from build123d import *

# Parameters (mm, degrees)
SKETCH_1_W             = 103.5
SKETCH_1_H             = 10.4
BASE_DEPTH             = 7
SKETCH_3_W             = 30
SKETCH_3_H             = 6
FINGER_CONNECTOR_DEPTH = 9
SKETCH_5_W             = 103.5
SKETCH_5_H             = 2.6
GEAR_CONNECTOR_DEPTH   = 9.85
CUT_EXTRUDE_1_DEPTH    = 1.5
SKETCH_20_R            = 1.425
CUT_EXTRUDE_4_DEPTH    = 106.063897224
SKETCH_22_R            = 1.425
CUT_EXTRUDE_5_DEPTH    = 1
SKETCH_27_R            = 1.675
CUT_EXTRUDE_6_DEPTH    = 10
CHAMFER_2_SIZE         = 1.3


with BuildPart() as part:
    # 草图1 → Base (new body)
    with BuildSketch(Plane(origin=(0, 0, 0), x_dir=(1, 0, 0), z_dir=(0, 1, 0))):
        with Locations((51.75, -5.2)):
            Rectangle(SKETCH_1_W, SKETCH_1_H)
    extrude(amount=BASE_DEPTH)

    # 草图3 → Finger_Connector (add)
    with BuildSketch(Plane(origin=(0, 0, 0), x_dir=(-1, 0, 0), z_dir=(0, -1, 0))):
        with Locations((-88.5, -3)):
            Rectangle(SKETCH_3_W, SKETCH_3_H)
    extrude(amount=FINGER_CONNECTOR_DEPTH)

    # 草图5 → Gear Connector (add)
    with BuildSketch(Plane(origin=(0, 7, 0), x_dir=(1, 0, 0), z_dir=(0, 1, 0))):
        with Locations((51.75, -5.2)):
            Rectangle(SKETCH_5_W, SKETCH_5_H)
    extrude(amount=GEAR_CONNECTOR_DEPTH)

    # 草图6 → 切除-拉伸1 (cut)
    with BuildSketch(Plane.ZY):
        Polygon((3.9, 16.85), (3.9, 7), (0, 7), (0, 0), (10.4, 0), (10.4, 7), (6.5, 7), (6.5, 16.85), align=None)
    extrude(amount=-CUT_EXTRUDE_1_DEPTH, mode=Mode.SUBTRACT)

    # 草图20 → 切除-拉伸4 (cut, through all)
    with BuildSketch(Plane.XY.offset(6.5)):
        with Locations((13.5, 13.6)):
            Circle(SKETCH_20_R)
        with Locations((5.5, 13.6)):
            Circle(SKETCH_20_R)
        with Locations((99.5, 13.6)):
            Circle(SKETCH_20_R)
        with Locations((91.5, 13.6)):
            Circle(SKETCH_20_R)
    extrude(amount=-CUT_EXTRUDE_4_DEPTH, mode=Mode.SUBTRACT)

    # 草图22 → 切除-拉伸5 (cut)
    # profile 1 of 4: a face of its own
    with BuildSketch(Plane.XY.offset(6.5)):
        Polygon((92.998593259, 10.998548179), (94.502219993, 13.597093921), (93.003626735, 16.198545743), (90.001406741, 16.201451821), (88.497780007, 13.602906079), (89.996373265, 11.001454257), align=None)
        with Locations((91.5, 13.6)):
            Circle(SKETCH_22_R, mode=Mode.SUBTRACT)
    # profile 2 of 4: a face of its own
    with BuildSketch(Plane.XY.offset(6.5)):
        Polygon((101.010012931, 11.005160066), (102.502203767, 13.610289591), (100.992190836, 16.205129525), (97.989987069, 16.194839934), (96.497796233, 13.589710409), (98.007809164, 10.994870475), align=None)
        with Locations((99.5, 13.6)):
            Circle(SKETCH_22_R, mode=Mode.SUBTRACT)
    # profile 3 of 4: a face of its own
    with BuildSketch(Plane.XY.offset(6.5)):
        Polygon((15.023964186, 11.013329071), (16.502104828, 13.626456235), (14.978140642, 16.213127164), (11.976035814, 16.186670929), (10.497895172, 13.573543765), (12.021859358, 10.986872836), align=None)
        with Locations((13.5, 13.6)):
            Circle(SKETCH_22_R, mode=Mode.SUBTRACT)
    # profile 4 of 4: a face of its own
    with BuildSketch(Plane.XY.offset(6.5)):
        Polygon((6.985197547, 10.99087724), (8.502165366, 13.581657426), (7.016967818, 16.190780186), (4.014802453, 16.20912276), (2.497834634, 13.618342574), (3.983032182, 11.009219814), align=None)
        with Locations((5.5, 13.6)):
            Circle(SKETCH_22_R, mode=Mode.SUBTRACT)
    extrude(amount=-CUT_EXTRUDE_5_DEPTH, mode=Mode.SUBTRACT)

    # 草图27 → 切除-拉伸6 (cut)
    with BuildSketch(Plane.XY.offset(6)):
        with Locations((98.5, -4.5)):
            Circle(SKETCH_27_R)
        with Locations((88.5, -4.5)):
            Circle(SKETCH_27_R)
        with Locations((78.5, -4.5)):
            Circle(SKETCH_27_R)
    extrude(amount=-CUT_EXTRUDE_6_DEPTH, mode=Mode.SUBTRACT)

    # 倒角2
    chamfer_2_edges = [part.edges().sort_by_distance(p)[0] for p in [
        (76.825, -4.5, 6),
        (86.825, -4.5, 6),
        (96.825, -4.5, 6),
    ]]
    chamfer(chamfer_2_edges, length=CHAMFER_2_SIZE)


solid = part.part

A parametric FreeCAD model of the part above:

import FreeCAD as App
import Part
import Sketcher
from FreeCAD import Vector
Q = App.Units.Quantity


def edges_at(feature, points):
    """Names of the edges that pass closest to the given points."""
    edges = feature.Shape.Edges
    near = lambda p: min(range(len(edges)), key=lambda i: edges[i].distToShape(Part.Vertex(*p))[0])
    return sorted({f"Edge{near(p) + 1}" for p in points})

doc = App.newDocument("Part")
body = doc.addObject("PartDesign::Body", "Body")

sketch1 = body.newObject("Sketcher::SketchObject", "Sketch")
sketch1.AttachmentSupport = (doc.getObject("XZ_Plane"), [""])
sketch1.MapMode = "FlatFace"
sketch1.addGeometry(Part.LineSegment(Vector(0, 0, 0), Vector(0, 10, 0)), False)
sketch1.addGeometry(Part.LineSegment(Vector(0, 10, 0), Vector(104, 10, 0)), False)
sketch1.addGeometry(Part.LineSegment(Vector(104, 10, 0), Vector(104, 0, 0)), False)
sketch1.addGeometry(Part.LineSegment(Vector(104, 0, 0), Vector(0, 0, 0)), False)
sketch1.addConstraint(Sketcher.Constraint("Coincident", 0, 2, 1, 1))
sketch1.addConstraint(Sketcher.Constraint("Coincident", 1, 2, 2, 1))
sketch1.addConstraint(Sketcher.Constraint("Coincident", 2, 2, 3, 1))
sketch1.addConstraint(Sketcher.Constraint("Coincident", 3, 2, 0, 1))
sketch1.addConstraint(Sketcher.Constraint("Vertical", 0))
sketch1.addConstraint(Sketcher.Constraint("Horizontal", 1))
sketch1.addConstraint(Sketcher.Constraint("Vertical", 2))
sketch1.addConstraint(Sketcher.Constraint("Horizontal", 3))
sketch1.addConstraint(Sketcher.Constraint("Coincident", 3, 2, -1, 1))
sketch1.addConstraint(Sketcher.Constraint("DistanceX", 1, 1, 1, 2, Q("103.5 mm")))
sketch1.addConstraint(Sketcher.Constraint("DistanceY", 0, 1, 0, 2, Q("10.4 mm")))
pad1 = body.newObject("PartDesign::Pad", "Pad")
pad1.Profile = sketch1
pad1.Length = 7
pad1.Reversed = True

sketch2 = body.newObject("Sketcher::SketchObject", "Sketch001")
sketch2.AttachmentSupport = (doc.getObject("XZ_Plane"), [""])
sketch2.MapMode = "FlatFace"
sketch2.addGeometry(Part.LineSegment(Vector(104, 0, 0), Vector(104, 6, 0)), False)
sketch2.addGeometry(Part.LineSegment(Vector(104, 6, 0), Vector(74, 6, 0)), False)
sketch2.addGeometry(Part.LineSegment(Vector(74, 6, 0), Vector(74, 0, 0)), False)
sketch2.addGeometry(Part.LineSegment(Vector(74, 0, 0), Vector(104, 0, 0)), False)
sketch2.addConstraint(Sketcher.Constraint("Coincident", 0, 2, 1, 1))
sketch2.addConstraint(Sketcher.Constraint("Coincident", 1, 2, 2, 1))
sketch2.addConstraint(Sketcher.Constraint("Coincident", 2, 2, 3, 1))
sketch2.addConstraint(Sketcher.Constraint("Coincident", 3, 2, 0, 1))
sketch2.addConstraint(Sketcher.Constraint("Vertical", 0))
sketch2.addConstraint(Sketcher.Constraint("Horizontal", 1))
sketch2.addConstraint(Sketcher.Constraint("Vertical", 2))
sketch2.addConstraint(Sketcher.Constraint("Horizontal", 3))
sketch2.addConstraint(Sketcher.Constraint("PointOnObject", 2, 2, -1))
sketch2.addConstraint(Sketcher.Constraint("DistanceX", 1, 2, 1, 1, Q("30 mm")))
sketch2.addConstraint(Sketcher.Constraint("DistanceY", 0, 1, 0, 2, Q("6 mm")))
sketch2.addConstraint(Sketcher.Constraint("DistanceX", -1, 1, 0, 2, Q("103.5 mm")))
pad2 = body.newObject("PartDesign::Pad", "Pad001")
pad2.Profile = sketch2
pad2.Length = 9

sketch3 = body.newObject("Sketcher::SketchObject", "Sketch002")
sketch3.AttachmentSupport = (doc.getObject("XZ_Plane"), [""])
sketch3.MapMode = "FlatFace"
sketch3.AttachmentOffset = App.Placement(Vector(0, 0, -7), App.Rotation())
sketch3.addGeometry(Part.LineSegment(Vector(0, 3.9, 0), Vector(0, 6.5, 0)), False)
sketch3.addGeometry(Part.LineSegment(Vector(0, 6.5, 0), Vector(103.5, 6.5, 0)), False)
sketch3.addGeometry(Part.LineSegment(Vector(103.5, 6.5, 0), Vector(103.5, 3.9, 0)), False)
sketch3.addGeometry(Part.LineSegment(Vector(103.5, 3.9, 0), Vector(0, 3.9, 0)), False)
sketch3.addConstraint(Sketcher.Constraint("Coincident", 0, 2, 1, 1))
sketch3.addConstraint(Sketcher.Constraint("Coincident", 1, 2, 2, 1))
sketch3.addConstraint(Sketcher.Constraint("Coincident", 2, 2, 3, 1))
sketch3.addConstraint(Sketcher.Constraint("Coincident", 3, 2, 0, 1))
sketch3.addConstraint(Sketcher.Constraint("Vertical", 0))
sketch3.addConstraint(Sketcher.Constraint("Horizontal", 1))
sketch3.addConstraint(Sketcher.Constraint("Vertical", 2))
sketch3.addConstraint(Sketcher.Constraint("Horizontal", 3))
sketch3.addConstraint(Sketcher.Constraint("PointOnObject", 0, 2, -2))
sketch3.addConstraint(Sketcher.Constraint("DistanceX", 1, 1, 1, 2, Q("103.5 mm")))
sketch3.addConstraint(Sketcher.Constraint("DistanceY", 0, 1, 0, 2, Q("2.6 mm")))
sketch3.addConstraint(Sketcher.Constraint("DistanceY", -1, 1, 0, 2, Q("6.5 mm")))
pad3 = body.newObject("PartDesign::Pad", "Pad002")
pad3.Profile = sketch3
pad3.Length = 9.85
pad3.Reversed = True

sketch4 = body.newObject("Sketcher::SketchObject", "Sketch003")
sketch4.AttachmentSupport = (doc.getObject("YZ_Plane"), [""])
sketch4.MapMode = "FlatFace"
sketch4.addGeometry(Part.LineSegment(Vector(16.9, 3.9, 0), Vector(7, 3.9, 0)), False)
sketch4.addGeometry(Part.LineSegment(Vector(7, 3.9, 0), Vector(7, 0, 0)), False)
sketch4.addGeometry(Part.LineSegment(Vector(7, 0, 0), Vector(0, 0, 0)), False)
sketch4.addGeometry(Part.LineSegment(Vector(0, 0, 0), Vector(0, 10.4, 0)), False)
sketch4.addGeometry(Part.LineSegment(Vector(0, 10.4, 0), Vector(7, 10.4, 0)), False)
sketch4.addGeometry(Part.LineSegment(Vector(7, 10.4, 0), Vector(7, 6.5, 0)), False)
sketch4.addGeometry(Part.LineSegment(Vector(7, 6.5, 0), Vector(16.9, 6.5, 0)), False)
sketch4.addGeometry(Part.LineSegment(Vector(16.9, 6.5, 0), Vector(16.9, 3.9, 0)), False)
sketch4.addConstraint(Sketcher.Constraint("Coincident", 0, 2, 1, 1))
sketch4.addConstraint(Sketcher.Constraint("Coincident", 1, 2, 2, 1))
sketch4.addConstraint(Sketcher.Constraint("Coincident", 2, 2, 3, 1))
sketch4.addConstraint(Sketcher.Constraint("Coincident", 3, 2, 4, 1))
sketch4.addConstraint(Sketcher.Constraint("Coincident", 4, 2, 5, 1))
sketch4.addConstraint(Sketcher.Constraint("Coincident", 5, 2, 6, 1))
sketch4.addConstraint(Sketcher.Constraint("Coincident", 6, 2, 7, 1))
sketch4.addConstraint(Sketcher.Constraint("Coincident", 7, 2, 0, 1))
sketch4.addConstraint(Sketcher.Constraint("Horizontal", 0))
sketch4.addConstraint(Sketcher.Constraint("Vertical", 1))
sketch4.addConstraint(Sketcher.Constraint("Horizontal", 2))
sketch4.addConstraint(Sketcher.Constraint("Vertical", 3))
sketch4.addConstraint(Sketcher.Constraint("Horizontal", 4))
sketch4.addConstraint(Sketcher.Constraint("Vertical", 5))
sketch4.addConstraint(Sketcher.Constraint("Horizontal", 6))
sketch4.addConstraint(Sketcher.Constraint("Vertical", 7))
sketch4.addConstraint(Sketcher.Constraint("Coincident", 2, 2, -1, 1))
sketch4.addConstraint(Sketcher.Constraint("Vertical", 1, 2, 4, 2))
sketch4.addConstraint(Sketcher.Constraint("Equal", 1, 5))
sketch4.addConstraint(Sketcher.Constraint("DistanceX", 2, 2, 2, 1, Q("7 mm")))
sketch4.addConstraint(Sketcher.Constraint("DistanceY", 1, 2, 1, 1, Q("3.9 mm")))
sketch4.addConstraint(Sketcher.Constraint("DistanceY", 3, 1, 3, 2, Q("10.4 mm")))
sketch4.addConstraint(Sketcher.Constraint("DistanceX", 0, 2, 0, 1, Q("9.85 mm")))
pocket1 = body.newObject("PartDesign::Pocket", "Pocket")
pocket1.Profile = sketch4
pocket1.Length = 1.5
pocket1.Reversed = True

sketch5 = body.newObject("Sketcher::SketchObject", "Sketch004")
sketch5.AttachmentSupport = (doc.getObject("XY_Plane"), [""])
sketch5.MapMode = "FlatFace"
sketch5.AttachmentOffset = App.Placement(Vector(0, 0, 6.5), App.Rotation())
sketch5.addGeometry(Part.Circle(Vector(13.5, 13.6, 0), Vector(0, 0, 1), 1.4), False)
sketch5.addGeometry(Part.Circle(Vector(5.5, 13.6, 0), Vector(0, 0, 1), 1.4), False)
sketch5.addGeometry(Part.Circle(Vector(99.5, 13.6, 0), Vector(0, 0, 1), 1.4), False)
sketch5.addGeometry(Part.Circle(Vector(91.5, 13.6, 0), Vector(0, 0, 1), 1.4), False)
sketch5.addConstraint(Sketcher.Constraint("Equal", 0, 1))
sketch5.addConstraint(Sketcher.Constraint("Equal", 1, 2))
sketch5.addConstraint(Sketcher.Constraint("Equal", 2, 3))
sketch5.addConstraint(Sketcher.Constraint("Horizontal", 0, 3, 1, 3))
sketch5.addConstraint(Sketcher.Constraint("Horizontal", 1, 3, 2, 3))
sketch5.addConstraint(Sketcher.Constraint("Horizontal", 2, 3, 3, 3))
sketch5.addConstraint(Sketcher.Constraint("Diameter", 0, Q("2.85 mm")))
sketch5.addConstraint(Sketcher.Constraint("DistanceX", 1, 3, 0, 3, Q("8 mm")))
sketch5.addConstraint(Sketcher.Constraint("DistanceX", 0, 3, 2, 3, Q("86 mm")))
sketch5.addConstraint(Sketcher.Constraint("DistanceX", 3, 3, 2, 3, Q("8 mm")))
sketch5.addConstraint(Sketcher.Constraint("DistanceX", -1, 1, 0, 3, Q("13.5 mm")))
sketch5.addConstraint(Sketcher.Constraint("DistanceY", -1, 1, 0, 3, Q("13.6 mm")))
pocket2 = body.newObject("PartDesign::Pocket", "Pocket001")
pocket2.Profile = sketch5
pocket2.Type = "ThroughAll"

sketch6 = body.newObject("Sketcher::SketchObject", "Sketch005")
sketch6.AttachmentSupport = (doc.getObject("XY_Plane"), [""])
sketch6.MapMode = "FlatFace"
sketch6.AttachmentOffset = App.Placement(Vector(0, 0, 6.5), App.Rotation())
sketch6.addGeometry(Part.LineSegment(Vector(93, 11, 0), Vector(94.5, 13.6, 0)), False)
sketch6.addGeometry(Part.LineSegment(Vector(94.5, 13.6, 0), Vector(93, 16.2, 0)), False)
sketch6.addGeometry(Part.LineSegment(Vector(93, 16.2, 0), Vector(90, 16.2, 0)), False)
sketch6.addGeometry(Part.LineSegment(Vector(90, 16.2, 0), Vector(88.5, 13.6, 0)), False)
sketch6.addGeometry(Part.LineSegment(Vector(88.5, 13.6, 0), Vector(90, 11, 0)), False)
sketch6.addGeometry(Part.LineSegment(Vector(90, 11, 0), Vector(93, 11, 0)), False)
sketch6.addGeometry(Part.Circle(Vector(91.5, 13.6, 0), Vector(0, 0, 1), 1.4), False)
sketch6.addGeometry(Part.LineSegment(Vector(101, 11, 0), Vector(102.5, 13.6, 0)), False)
sketch6.addGeometry(Part.LineSegment(Vector(102.5, 13.6, 0), Vector(101, 16.2, 0)), False)
sketch6.addGeometry(Part.LineSegment(Vector(101, 16.2, 0), Vector(98, 16.2, 0)), False)
sketch6.addGeometry(Part.LineSegment(Vector(98, 16.2, 0), Vector(96.5, 13.6, 0)), False)
sketch6.addGeometry(Part.LineSegment(Vector(96.5, 13.6, 0), Vector(98, 11, 0)), False)
sketch6.addGeometry(Part.LineSegment(Vector(98, 11, 0), Vector(101, 11, 0)), False)
sketch6.addGeometry(Part.Circle(Vector(99.5, 13.6, 0), Vector(0, 0, 1), 1.4), False)
sketch6.addGeometry(Part.LineSegment(Vector(15, 11, 0), Vector(16.5, 13.6, 0)), False)
sketch6.addGeometry(Part.LineSegment(Vector(16.5, 13.6, 0), Vector(15, 16.2, 0)), False)
sketch6.addGeometry(Part.LineSegment(Vector(15, 16.2, 0), Vector(12, 16.2, 0)), False)
sketch6.addGeometry(Part.LineSegment(Vector(12, 16.2, 0), Vector(10.5, 13.6, 0)), False)
sketch6.addGeometry(Part.LineSegment(Vector(10.5, 13.6, 0), Vector(12, 11, 0)), False)
sketch6.addGeometry(Part.LineSegment(Vector(12, 11, 0), Vector(15, 11, 0)), False)
sketch6.addGeometry(Part.Circle(Vector(13.5, 13.6, 0), Vector(0, 0, 1), 1.4), False)
sketch6.addGeometry(Part.LineSegment(Vector(7, 11, 0), Vector(8.5, 13.6, 0)), False)
sketch6.addGeometry(Part.LineSegment(Vector(8.5, 13.6, 0), Vector(7, 16.2, 0)), False)
sketch6.addGeometry(Part.LineSegment(Vector(7, 16.2, 0), Vector(4, 16.2, 0)), False)
sketch6.addGeometry(Part.LineSegment(Vector(4, 16.2, 0), Vector(2.5, 13.6, 0)), False)
sketch6.addGeometry(Part.LineSegment(Vector(2.5, 13.6, 0), Vector(4, 11, 0)), False)
sketch6.addGeometry(Part.LineSegment(Vector(4, 11, 0), Vector(7, 11, 0)), False)
sketch6.addGeometry(Part.Circle(Vector(5.5, 13.6, 0), Vector(0, 0, 1), 1.4), False)
sketch6.addConstraint(Sketcher.Constraint("Coincident", 0, 2, 1, 1))
sketch6.addConstraint(Sketcher.Constraint("Coincident", 1, 2, 2, 1))
sketch6.addConstraint(Sketcher.Constraint("Coincident", 2, 2, 3, 1))
sketch6.addConstraint(Sketcher.Constraint("Coincident", 3, 2, 4, 1))
sketch6.addConstraint(Sketcher.Constraint("Coincident", 4, 2, 5, 1))
sketch6.addConstraint(Sketcher.Constraint("Coincident", 5, 2, 0, 1))
sketch6.addConstraint(Sketcher.Constraint("Coincident", 7, 2, 8, 1))
sketch6.addConstraint(Sketcher.Constraint("Coincident", 8, 2, 9, 1))
sketch6.addConstraint(Sketcher.Constraint("Coincident", 9, 2, 10, 1))
sketch6.addConstraint(Sketcher.Constraint("Coincident", 10, 2, 11, 1))
sketch6.addConstraint(Sketcher.Constraint("Coincident", 11, 2, 12, 1))
sketch6.addConstraint(Sketcher.Constraint("Coincident", 12, 2, 7, 1))
sketch6.addConstraint(Sketcher.Constraint("Coincident", 14, 2, 15, 1))
sketch6.addConstraint(Sketcher.Constraint("Coincident", 15, 2, 16, 1))
sketch6.addConstraint(Sketcher.Constraint("Coincident", 16, 2, 17, 1))
sketch6.addConstraint(Sketcher.Constraint("Coincident", 17, 2, 18, 1))
sketch6.addConstraint(Sketcher.Constraint("Coincident", 18, 2, 19, 1))
sketch6.addConstraint(Sketcher.Constraint("Coincident", 19, 2, 14, 1))
sketch6.addConstraint(Sketcher.Constraint("Coincident", 21, 2, 22, 1))
sketch6.addConstraint(Sketcher.Constraint("Coincident", 22, 2, 23, 1))
sketch6.addConstraint(Sketcher.Constraint("Coincident", 23, 2, 24, 1))
sketch6.addConstraint(Sketcher.Constraint("Coincident", 24, 2, 25, 1))
sketch6.addConstraint(Sketcher.Constraint("Coincident", 25, 2, 26, 1))
sketch6.addConstraint(Sketcher.Constraint("Coincident", 26, 2, 21, 1))
sketch6.addConstraint(Sketcher.Constraint("Equal", 6, 13))
sketch6.addConstraint(Sketcher.Constraint("Equal", 13, 20))
sketch6.addConstraint(Sketcher.Constraint("Equal", 20, 27))
sketch6.addConstraint(Sketcher.Constraint("Parallel", 0, 3))
sketch6.addConstraint(Sketcher.Constraint("Parallel", 1, 4))
sketch6.addConstraint(Sketcher.Constraint("Parallel", 2, 5))
sketch6.addConstraint(Sketcher.Constraint("Parallel", 7, 10))
sketch6.addConstraint(Sketcher.Constraint("Parallel", 8, 11))
sketch6.addConstraint(Sketcher.Constraint("Parallel", 9, 12))
sketch6.addConstraint(Sketcher.Constraint("Parallel", 14, 17))
sketch6.addConstraint(Sketcher.Constraint("Parallel", 15, 18))
sketch6.addConstraint(Sketcher.Constraint("Parallel", 16, 19))
sketch6.addConstraint(Sketcher.Constraint("Parallel", 21, 24))
sketch6.addConstraint(Sketcher.Constraint("Parallel", 22, 25))
sketch6.addConstraint(Sketcher.Constraint("Parallel", 23, 26))
sketch6.addConstraint(Sketcher.Constraint("Horizontal", 6, 3, 13, 3))
sketch6.addConstraint(Sketcher.Constraint("Horizontal", 13, 3, 20, 3))
sketch6.addConstraint(Sketcher.Constraint("Horizontal", 20, 3, 27, 3))
sketch6.addConstraint(Sketcher.Constraint("Equal", 0, 1))
sketch6.addConstraint(Sketcher.Constraint("Equal", 1, 2))
sketch6.addConstraint(Sketcher.Constraint("Equal", 2, 3))
sketch6.addConstraint(Sketcher.Constraint("Equal", 5, 7))
sketch6.addConstraint(Sketcher.Constraint("Equal", 7, 8))
sketch6.addConstraint(Sketcher.Constraint("Equal", 8, 9))
sketch6.addConstraint(Sketcher.Constraint("Equal", 9, 10))
sketch6.addConstraint(Sketcher.Constraint("Equal", 12, 14))
sketch6.addConstraint(Sketcher.Constraint("Equal", 14, 15))
sketch6.addConstraint(Sketcher.Constraint("Equal", 15, 16))
sketch6.addConstraint(Sketcher.Constraint("Equal", 16, 17))
sketch6.addConstraint(Sketcher.Constraint("Equal", 19, 21))
sketch6.addConstraint(Sketcher.Constraint("Equal", 21, 22))
sketch6.addConstraint(Sketcher.Constraint("Equal", 22, 23))
sketch6.addConstraint(Sketcher.Constraint("Equal", 23, 24))
sketch6.addConstraint(Sketcher.Constraint("Diameter", 6, Q("2.85 mm")))
sketch6.addConstraint(Sketcher.Constraint("DistanceX", 6, 3, 13, 3, Q("8 mm")))
sketch6.addConstraint(Sketcher.Constraint("DistanceX", 20, 3, 6, 3, Q("78 mm")))
sketch6.addConstraint(Sketcher.Constraint("DistanceX", 27, 3, 20, 3, Q("8 mm")))
sketch6.addConstraint(Sketcher.Constraint("DistanceX", -1, 1, 6, 3, Q("91.5 mm")))
sketch6.addConstraint(Sketcher.Constraint("DistanceY", -1, 1, 6, 3, Q("13.6 mm")))
sketch6.addConstraint(Sketcher.Constraint("DistanceY", 4, 2, 14, 2, Q("2.625002 mm")))
sketch6.addConstraint(Sketcher.Constraint("DistanceX", 14, 2, 2, 2, Q("73.499302 mm")))
sketch6.addConstraint(Sketcher.Constraint("DistanceY", 18, 2, 16, 2, Q("5.199798 mm")))
sketch6.addConstraint(Sketcher.Constraint("DistanceY", 17, 2, 24, 2, Q("0.044799 mm")))
sketch6.addConstraint(Sketcher.Constraint("Distance", 0, Q("3.002221 mm")))
sketch6.addConstraint(Sketcher.Constraint("DistanceX", -1, 1, 0, 2, Q("94.50222 mm")))
sketch6.addConstraint(Sketcher.Constraint("DistanceY", -1, 1, 2, 2, Q("16.201452 mm")))
sketch6.addConstraint(Sketcher.Constraint("DistanceX", -1, 1, 3, 2, Q("88.49778 mm")))
sketch6.addConstraint(Sketcher.Constraint("DistanceY", -1, 1, 5, 2, Q("10.998548 mm")))
sketch6.addConstraint(Sketcher.Constraint("DistanceY", -1, 1, 7, 2, Q("13.61029 mm")))
sketch6.addConstraint(Sketcher.Constraint("DistanceX", -1, 1, 8, 2, Q("100.992191 mm")))
sketch6.addConstraint(Sketcher.Constraint("DistanceY", -1, 1, 8, 2, Q("16.20513 mm")))
sketch6.addConstraint(Sketcher.Constraint("DistanceY", -1, 1, 9, 2, Q("16.19484 mm")))
sketch6.addConstraint(Sketcher.Constraint("DistanceY", -1, 1, 10, 2, Q("13.58971 mm")))
sketch6.addConstraint(Sketcher.Constraint("DistanceX", -1, 1, 15, 2, Q("14.978141 mm")))
sketch6.addConstraint(Sketcher.Constraint("DistanceY", -1, 1, 16, 2, Q("16.186671 mm")))
sketch6.addConstraint(Sketcher.Constraint("DistanceX", -1, 1, 18, 2, Q("12.021859 mm")))
sketch6.addConstraint(Sketcher.Constraint("DistanceY", -1, 1, 22, 2, Q("16.19078 mm")))
sketch6.addConstraint(Sketcher.Constraint("DistanceY", -1, 1, 25, 2, Q("11.00922 mm")))
sketch6.addConstraint(Sketcher.Constraint("DistanceX", 21, 2, 17, 2, Q("1.99573 mm")))
sketch6.addConstraint(Sketcher.Constraint("DistanceY", 17, 2, 23, 2, Q("2.635579 mm")))
pocket3 = body.newObject("PartDesign::Pocket", "Pocket002")
pocket3.Profile = sketch6
pocket3.Length = 1

sketch7 = body.newObject("Sketcher::SketchObject", "Sketch006")
sketch7.AttachmentSupport = (doc.getObject("XY_Plane"), [""])
sketch7.MapMode = "FlatFace"
sketch7.AttachmentOffset = App.Placement(Vector(0, 0, 6), App.Rotation())
sketch7.addGeometry(Part.Circle(Vector(98.5, -4.5, 0), Vector(0, 0, 1), 1.7), False)
sketch7.addGeometry(Part.Circle(Vector(88.5, -4.5, 0), Vector(0, 0, 1), 1.7), False)
sketch7.addGeometry(Part.Circle(Vector(78.5, -4.5, 0), Vector(0, 0, 1), 1.7), False)
sketch7.addConstraint(Sketcher.Constraint("Equal", 0, 1))
sketch7.addConstraint(Sketcher.Constraint("Equal", 1, 2))
sketch7.addConstraint(Sketcher.Constraint("Horizontal", 0, 3, 1, 3))
sketch7.addConstraint(Sketcher.Constraint("Horizontal", 1, 3, 2, 3))
sketch7.addConstraint(Sketcher.Constraint("Diameter", 0, Q("3.35 mm")))
sketch7.addConstraint(Sketcher.Constraint("DistanceX", 1, 3, 0, 3, Q("10 mm")))
sketch7.addConstraint(Sketcher.Constraint("DistanceX", 2, 3, 1, 3, Q("10 mm")))
sketch7.addConstraint(Sketcher.Constraint("DistanceX", -1, 1, 0, 3, Q("98.5 mm")))
sketch7.addConstraint(Sketcher.Constraint("DistanceY", 0, 3, -1, 1, Q("4.5 mm")))
pocket4 = body.newObject("PartDesign::Pocket", "Pocket003")
pocket4.Profile = sketch7
pocket4.Length = 10
doc.recompute()

chamfer = body.newObject("PartDesign::Chamfer", "Chamfer")
chamfer.Base = (pocket4, edges_at(pocket4, [(76.825, -4.5, 6), (86.825, -4.5, 6), (96.825, -4.5, 6)]))
chamfer.Size = 1.3

doc.recompute()
